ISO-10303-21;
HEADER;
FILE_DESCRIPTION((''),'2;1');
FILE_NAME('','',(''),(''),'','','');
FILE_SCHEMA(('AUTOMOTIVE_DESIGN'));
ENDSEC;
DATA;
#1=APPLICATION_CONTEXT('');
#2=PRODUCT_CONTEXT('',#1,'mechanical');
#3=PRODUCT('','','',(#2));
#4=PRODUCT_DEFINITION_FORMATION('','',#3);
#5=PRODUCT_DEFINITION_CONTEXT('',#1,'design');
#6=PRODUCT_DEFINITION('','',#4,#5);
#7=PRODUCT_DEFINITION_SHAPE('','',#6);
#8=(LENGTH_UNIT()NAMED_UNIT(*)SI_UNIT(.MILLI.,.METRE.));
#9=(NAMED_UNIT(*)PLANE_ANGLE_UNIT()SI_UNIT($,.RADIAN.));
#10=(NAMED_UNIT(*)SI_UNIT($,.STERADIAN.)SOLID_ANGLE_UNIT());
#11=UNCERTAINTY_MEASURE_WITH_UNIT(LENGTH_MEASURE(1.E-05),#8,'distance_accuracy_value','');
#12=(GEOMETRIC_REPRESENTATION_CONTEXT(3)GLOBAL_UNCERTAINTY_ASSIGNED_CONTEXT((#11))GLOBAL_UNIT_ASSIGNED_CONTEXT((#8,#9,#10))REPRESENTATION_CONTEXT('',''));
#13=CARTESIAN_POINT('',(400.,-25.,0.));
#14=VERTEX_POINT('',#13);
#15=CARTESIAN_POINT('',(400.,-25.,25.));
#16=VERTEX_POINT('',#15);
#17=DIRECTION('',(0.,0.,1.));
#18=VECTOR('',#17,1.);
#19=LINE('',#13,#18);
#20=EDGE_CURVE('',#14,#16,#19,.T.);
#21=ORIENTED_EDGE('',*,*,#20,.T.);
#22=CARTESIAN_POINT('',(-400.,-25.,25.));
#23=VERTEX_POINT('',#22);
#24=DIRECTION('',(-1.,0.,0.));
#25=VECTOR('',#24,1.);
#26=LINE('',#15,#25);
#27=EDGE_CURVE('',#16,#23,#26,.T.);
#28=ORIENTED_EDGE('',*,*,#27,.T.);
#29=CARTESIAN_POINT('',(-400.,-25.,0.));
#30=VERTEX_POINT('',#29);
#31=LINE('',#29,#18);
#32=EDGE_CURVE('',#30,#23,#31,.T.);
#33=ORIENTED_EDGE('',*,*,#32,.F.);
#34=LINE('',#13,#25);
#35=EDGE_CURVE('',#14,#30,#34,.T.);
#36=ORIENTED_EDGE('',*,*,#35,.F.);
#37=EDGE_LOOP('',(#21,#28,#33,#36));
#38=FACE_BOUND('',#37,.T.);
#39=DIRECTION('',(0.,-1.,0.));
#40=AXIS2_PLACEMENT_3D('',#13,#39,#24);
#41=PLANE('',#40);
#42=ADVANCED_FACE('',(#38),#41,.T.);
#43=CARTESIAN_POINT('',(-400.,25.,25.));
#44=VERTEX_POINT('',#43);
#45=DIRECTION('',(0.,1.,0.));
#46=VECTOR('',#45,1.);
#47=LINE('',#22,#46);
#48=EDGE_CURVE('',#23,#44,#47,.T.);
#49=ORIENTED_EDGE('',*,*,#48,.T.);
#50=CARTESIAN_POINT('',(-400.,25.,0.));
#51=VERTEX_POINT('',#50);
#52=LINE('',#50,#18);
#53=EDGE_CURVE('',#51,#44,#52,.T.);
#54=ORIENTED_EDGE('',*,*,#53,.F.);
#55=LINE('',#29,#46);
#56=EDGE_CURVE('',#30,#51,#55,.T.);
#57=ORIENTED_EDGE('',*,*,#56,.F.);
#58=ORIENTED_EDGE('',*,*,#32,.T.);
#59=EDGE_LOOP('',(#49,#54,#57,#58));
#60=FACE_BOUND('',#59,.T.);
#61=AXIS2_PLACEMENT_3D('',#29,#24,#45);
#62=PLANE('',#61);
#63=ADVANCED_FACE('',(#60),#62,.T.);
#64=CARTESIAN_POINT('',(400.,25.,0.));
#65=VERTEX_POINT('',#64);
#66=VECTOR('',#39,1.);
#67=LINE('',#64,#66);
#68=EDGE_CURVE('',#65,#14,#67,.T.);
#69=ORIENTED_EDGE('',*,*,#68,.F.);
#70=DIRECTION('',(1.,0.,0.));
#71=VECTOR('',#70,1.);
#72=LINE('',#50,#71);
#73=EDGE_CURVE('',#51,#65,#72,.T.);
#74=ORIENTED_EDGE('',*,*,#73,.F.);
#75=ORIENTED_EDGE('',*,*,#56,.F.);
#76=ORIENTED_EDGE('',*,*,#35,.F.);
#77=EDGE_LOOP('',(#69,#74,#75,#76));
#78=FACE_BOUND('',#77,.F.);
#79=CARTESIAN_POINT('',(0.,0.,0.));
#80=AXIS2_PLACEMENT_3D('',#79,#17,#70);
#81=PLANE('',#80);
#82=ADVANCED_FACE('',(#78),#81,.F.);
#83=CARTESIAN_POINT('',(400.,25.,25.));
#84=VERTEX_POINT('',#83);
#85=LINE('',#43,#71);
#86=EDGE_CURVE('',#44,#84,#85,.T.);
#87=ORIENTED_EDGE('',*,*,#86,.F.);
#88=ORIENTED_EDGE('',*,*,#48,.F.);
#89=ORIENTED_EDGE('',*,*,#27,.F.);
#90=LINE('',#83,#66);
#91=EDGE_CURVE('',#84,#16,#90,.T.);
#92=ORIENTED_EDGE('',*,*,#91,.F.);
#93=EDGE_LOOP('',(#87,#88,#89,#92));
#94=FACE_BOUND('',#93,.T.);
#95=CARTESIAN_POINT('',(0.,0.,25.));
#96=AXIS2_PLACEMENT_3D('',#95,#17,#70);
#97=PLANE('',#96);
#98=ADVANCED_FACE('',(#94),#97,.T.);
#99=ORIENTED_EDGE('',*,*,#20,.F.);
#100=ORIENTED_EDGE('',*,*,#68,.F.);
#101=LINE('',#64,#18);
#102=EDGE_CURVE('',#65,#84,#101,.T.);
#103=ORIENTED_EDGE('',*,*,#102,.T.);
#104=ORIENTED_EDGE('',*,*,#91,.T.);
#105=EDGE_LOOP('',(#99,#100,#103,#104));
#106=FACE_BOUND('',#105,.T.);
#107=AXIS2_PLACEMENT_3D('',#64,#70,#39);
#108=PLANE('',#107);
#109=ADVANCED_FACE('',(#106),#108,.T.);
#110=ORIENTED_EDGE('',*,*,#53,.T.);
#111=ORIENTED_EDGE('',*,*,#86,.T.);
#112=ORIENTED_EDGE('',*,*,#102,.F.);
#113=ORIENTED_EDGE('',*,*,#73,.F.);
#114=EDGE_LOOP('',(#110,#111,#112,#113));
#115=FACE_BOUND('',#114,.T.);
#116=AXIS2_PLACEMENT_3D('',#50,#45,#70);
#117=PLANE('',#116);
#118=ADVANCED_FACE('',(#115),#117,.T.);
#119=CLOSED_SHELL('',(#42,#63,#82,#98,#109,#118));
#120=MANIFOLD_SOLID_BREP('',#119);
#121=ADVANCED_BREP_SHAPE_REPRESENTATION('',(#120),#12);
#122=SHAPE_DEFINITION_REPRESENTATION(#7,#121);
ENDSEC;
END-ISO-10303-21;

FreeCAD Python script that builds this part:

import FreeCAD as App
import Part
import Sketcher
Q = App.Units.Quantity

doc = App.newDocument("Part")
params = doc.addObject("Spreadsheet::Sheet", "Params")
for row, (alias, value) in enumerate([
    ("sketch1_width", "800 mm"),
    ("sketch1_height", "50 mm"),
    ("pad1_length", "25 mm"),
], start=1):
    params.set(f"A{row}", alias)
    params.set(f"B{row}", "=" + value)
    params.setAlias(f"B{row}", alias)

body = doc.addObject("PartDesign::Body", "Body")

# Sketch on XY plane
sketch1 = body.newObject("Sketcher::SketchObject", "Sketch")
sketch1.AttachmentSupport = (doc.getObject("XY_Plane"), [""])
sketch1.MapMode = "FlatFace"
sketch1.addGeometry([
    Part.LineSegment(App.Vector(400, 25, 0), App.Vector(-400, 25, 0)),
    Part.LineSegment(App.Vector(-400, 25, 0), App.Vector(-400, -25, 0)),
    Part.LineSegment(App.Vector(-400, -25, 0), App.Vector(400, -25, 0)),
    Part.LineSegment(App.Vector(400, -25, 0), App.Vector(400, 25, 0)),
], False)
sketch1.addConstraint([
    Sketcher.Constraint("Coincident", 0, 2, 1, 1),
    Sketcher.Constraint("Coincident", 1, 2, 2, 1),
    Sketcher.Constraint("Coincident", 2, 2, 3, 1),
    Sketcher.Constraint("Coincident", 3, 2, 0, 1),
    Sketcher.Constraint("Horizontal", 0),
    Sketcher.Constraint("Vertical", 1),
    Sketcher.Constraint("Horizontal", 2),
    Sketcher.Constraint("Vertical", 3),
    Sketcher.Constraint("Symmetric", 0, 2, 2, 2, -1, 1),
    Sketcher.Constraint("DistanceX", 0, 2, 0, 1, Q("800 mm")),
    Sketcher.Constraint("DistanceY", 1, 2, 1, 1, Q("50 mm")),
])
sketch1.setExpression("Constraints[9]", "Params.sketch1_width")
sketch1.setExpression("Constraints[10]", "Params.sketch1_height")
pad1 = body.newObject("PartDesign::Pad", "Pad")
pad1.Profile = sketch1
pad1.setExpression("Length", "Params.pad1_length")

doc.recompute()
